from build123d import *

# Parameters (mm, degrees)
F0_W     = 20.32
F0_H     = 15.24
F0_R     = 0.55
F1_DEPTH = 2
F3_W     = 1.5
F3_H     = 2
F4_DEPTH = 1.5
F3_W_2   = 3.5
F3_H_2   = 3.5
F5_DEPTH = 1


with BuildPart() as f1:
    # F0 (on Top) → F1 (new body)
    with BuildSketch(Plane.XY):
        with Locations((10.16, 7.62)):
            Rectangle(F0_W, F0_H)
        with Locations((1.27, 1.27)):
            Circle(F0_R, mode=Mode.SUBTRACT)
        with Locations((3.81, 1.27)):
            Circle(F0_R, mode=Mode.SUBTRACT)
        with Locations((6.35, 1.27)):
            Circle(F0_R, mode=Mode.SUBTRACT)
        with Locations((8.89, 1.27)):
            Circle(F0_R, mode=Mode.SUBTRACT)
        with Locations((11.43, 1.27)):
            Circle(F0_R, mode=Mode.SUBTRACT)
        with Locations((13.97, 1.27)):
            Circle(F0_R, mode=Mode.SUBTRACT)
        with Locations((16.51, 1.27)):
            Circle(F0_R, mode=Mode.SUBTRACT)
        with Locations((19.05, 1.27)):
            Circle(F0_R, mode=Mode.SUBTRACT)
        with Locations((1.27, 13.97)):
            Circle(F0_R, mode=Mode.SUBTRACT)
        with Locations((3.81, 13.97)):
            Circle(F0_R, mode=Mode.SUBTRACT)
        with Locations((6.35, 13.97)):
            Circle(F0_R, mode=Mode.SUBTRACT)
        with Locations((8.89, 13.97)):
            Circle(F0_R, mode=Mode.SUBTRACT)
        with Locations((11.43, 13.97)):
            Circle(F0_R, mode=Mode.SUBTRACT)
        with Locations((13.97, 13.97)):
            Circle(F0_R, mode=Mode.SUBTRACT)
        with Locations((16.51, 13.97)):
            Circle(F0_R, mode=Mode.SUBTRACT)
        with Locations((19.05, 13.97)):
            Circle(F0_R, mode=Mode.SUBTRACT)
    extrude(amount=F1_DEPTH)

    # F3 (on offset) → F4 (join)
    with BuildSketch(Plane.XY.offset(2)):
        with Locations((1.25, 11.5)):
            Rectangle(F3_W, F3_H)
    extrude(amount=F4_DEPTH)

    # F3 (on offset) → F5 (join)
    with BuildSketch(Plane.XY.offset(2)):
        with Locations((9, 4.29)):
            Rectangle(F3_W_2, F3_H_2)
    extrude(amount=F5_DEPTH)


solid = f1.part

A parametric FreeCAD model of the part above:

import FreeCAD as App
import Part
import Sketcher
from FreeCAD import Vector
Q = App.Units.Quantity

doc = App.newDocument("Part")
params = doc.addObject("Spreadsheet::Sheet", "Params")
for row, (alias, value) in enumerate([
    ("sketch1_diameter", "1.1 mm"),
    ("sketch1_width", "20.32 mm"),
    ("sketch1_height", "15.24 mm"),
    ("pad1_length", "2 mm"),
    ("sketch2_height", "2 mm"),
    ("sketch2_width", "1.5 mm"),
    ("pad2_length", "1.5 mm"),
    ("sketch3_width", "3.5 mm"),
    ("pad3_length", "1 mm"),
], start=1):
    params.set(f"A{row}", alias)
    params.set(f"B{row}", "=" + value)
    params.setAlias(f"B{row}", alias)

body = doc.addObject("PartDesign::Body", "Body")

# Sketch on XY plane
sketch1 = body.newObject("Sketcher::SketchObject", "Sketch")
sketch1.AttachmentSupport = (doc.getObject("XY_Plane"), [""])
sketch1.MapMode = "FlatFace"
sketch1.addGeometry([
    Part.LineSegment(Vector(0, 15.2, 0), Vector(0, 0, 0)),  # 0
    Part.LineSegment(Vector(0, 0, 0), Vector(20.3, 0, 0)),  # 1
    Part.LineSegment(Vector(20.3, 0, 0), Vector(20.3, 15.2, 0)),  # 2
    Part.LineSegment(Vector(20.3, 15.2, 0), Vector(0, 15.2, 0)),  # 3
    Part.Circle(Vector(1.3, 1.3, 0), Vector(0, 0, 1), 0.6),  # 4
    Part.Circle(Vector(3.8, 1.3, 0), Vector(0, 0, 1), 0.6),  # 5
    Part.Circle(Vector(6.3, 1.3, 0), Vector(0, 0, 1), 0.6),  # 6
    Part.Circle(Vector(8.9, 1.3, 0), Vector(0, 0, 1), 0.6),  # 7
    Part.Circle(Vector(11.4, 1.3, 0), Vector(0, 0, 1), 0.6),  # 8
    Part.Circle(Vector(14, 1.3, 0), Vector(0, 0, 1), 0.6),  # 9
    Part.Circle(Vector(16.5, 1.3, 0), Vector(0, 0, 1), 0.6),  # 10
    Part.Circle(Vector(19.1, 1.3, 0), Vector(0, 0, 1), 0.6),  # 11
    Part.Circle(Vector(1.3, 14, 0), Vector(0, 0, 1), 0.6),  # 12
    Part.Circle(Vector(3.8, 14, 0), Vector(0, 0, 1), 0.6),  # 13
    Part.Circle(Vector(6.3, 14, 0), Vector(0, 0, 1), 0.6),  # 14
    Part.Circle(Vector(8.9, 14, 0), Vector(0, 0, 1), 0.6),  # 15
    Part.Circle(Vector(11.4, 14, 0), Vector(0, 0, 1), 0.6),  # 16
    Part.Circle(Vector(14, 14, 0), Vector(0, 0, 1), 0.6),  # 17
    Part.Circle(Vector(16.5, 14, 0), Vector(0, 0, 1), 0.6),  # 18
    Part.Circle(Vector(19.1, 14, 0), Vector(0, 0, 1), 0.6),  # 19
], False)
sketch1.addConstraint([
    Sketcher.Constraint("Coincident", 0, 2, 1, 1),
    Sketcher.Constraint("Coincident", 1, 2, 2, 1),
    Sketcher.Constraint("Coincident", 2, 2, 3, 1),
    Sketcher.Constraint("Coincident", 3, 2, 0, 1),
    Sketcher.Constraint("Vertical", 0),
    Sketcher.Constraint("Horizontal", 1),
    Sketcher.Constraint("Vertical", 2),
    Sketcher.Constraint("Horizontal", 3),
    Sketcher.Constraint("Coincident", 0, 2, -1, 1),
    Sketcher.Constraint("Equal", 4, 5),
    Sketcher.Constraint("Equal", 5, 6),
    Sketcher.Constraint("Equal", 6, 7),
    Sketcher.Constraint("Equal", 7, 8),
    Sketcher.Constraint("Equal", 8, 9),
    Sketcher.Constraint("Equal", 9, 10),
    Sketcher.Constraint("Equal", 10, 11),
    Sketcher.Constraint("Equal", 11, 12),
    Sketcher.Constraint("Equal", 12, 13),
    Sketcher.Constraint("Equal", 13, 14),
    Sketcher.Constraint("Equal", 14, 15),
    Sketcher.Constraint("Equal", 15, 16),
    Sketcher.Constraint("Equal", 16, 17),
    Sketcher.Constraint("Equal", 17, 18),
    Sketcher.Constraint("Equal", 18, 19),
    Sketcher.Constraint("Horizontal", 4, 3, 5, 3),
    Sketcher.Constraint("Horizontal", 5, 3, 6, 3),
    Sketcher.Constraint("Horizontal", 6, 3, 7, 3),
    Sketcher.Constraint("Horizontal", 7, 3, 8, 3),
    Sketcher.Constraint("Horizontal", 8, 3, 9, 3),
    Sketcher.Constraint("Horizontal", 9, 3, 10, 3),
    Sketcher.Constraint("Horizontal", 10, 3, 11, 3),
    Sketcher.Constraint("Horizontal", 12, 3, 13, 3),
    Sketcher.Constraint("Horizontal", 13, 3, 14, 3),
    Sketcher.Constraint("Horizontal", 14, 3, 15, 3),
    Sketcher.Constraint("Horizontal", 15, 3, 16, 3),
    Sketcher.Constraint("Horizontal", 16, 3, 17, 3),
    Sketcher.Constraint("Horizontal", 17, 3, 18, 3),
    Sketcher.Constraint("Horizontal", 18, 3, 19, 3),
    Sketcher.Constraint("Vertical", 4, 3, 12, 3),
    Sketcher.Constraint("Vertical", 5, 3, 13, 3),
    Sketcher.Constraint("Vertical", 6, 3, 14, 3),
    Sketcher.Constraint("Vertical", 7, 3, 15, 3),
    Sketcher.Constraint("Vertical", 8, 3, 16, 3),
    Sketcher.Constraint("Vertical", 9, 3, 17, 3),
    Sketcher.Constraint("Vertical", 10, 3, 18, 3),
    Sketcher.Constraint("Vertical", 11, 3, 19, 3),
    Sketcher.Constraint("Diameter", 4, Q("1.1 mm")),
    Sketcher.Constraint("DistanceX", 1, 1, 1, 2, Q("20.32 mm")),
    Sketcher.Constraint("DistanceY", 0, 2, 0, 1, Q("15.24 mm")),
    Sketcher.Constraint("DistanceX", 4, 3, 9, 3, Q("12.7 mm")),
    Sketcher.Constraint("DistanceX", 5, 3, 10, 3, Q("12.7 mm")),
    Sketcher.Constraint("DistanceX", 6, 3, 11, 3, Q("12.7 mm")),
    Sketcher.Constraint("DistanceY", 4, 3, 12, 3, Q("12.7 mm")),
    Sketcher.Constraint("DistanceX", -1, 1, 4, 3, Q("1.27 mm")),
    Sketcher.Constraint("DistanceY", -1, 1, 4, 3, Q("1.27 mm")),
    Sketcher.Constraint("DistanceX", -1, 1, 5, 3, Q("3.81 mm")),
    Sketcher.Constraint("DistanceX", -1, 1, 6, 3, Q("6.35 mm")),
    Sketcher.Constraint("DistanceX", -1, 1, 7, 3, Q("8.89 mm")),
    Sketcher.Constraint("DistanceX", -1, 1, 8, 3, Q("11.43 mm")),
])
sketch1.setExpression("Constraints[46]", "Params.sketch1_diameter")
sketch1.setExpression("Constraints[47]", "Params.sketch1_width")
sketch1.setExpression("Constraints[48]", "Params.sketch1_height")
pad1 = body.newObject("PartDesign::Pad", "Pad")
pad1.Profile = sketch1
pad1.setExpression("Length", "Params.pad1_length")

# Sketch on XY plane
sketch2 = body.newObject("Sketcher::SketchObject", "Sketch001")
sketch2.AttachmentSupport = (doc.getObject("XY_Plane"), [""])
sketch2.MapMode = "FlatFace"
sketch2.AttachmentOffset = App.Placement(Vector(0, 0, 2), App.Rotation())
sketch2.addGeometry([
    Part.LineSegment(Vector(0.5, 12.5, 0), Vector(0.5, 10.5, 0)),
    Part.LineSegment(Vector(0.5, 10.5, 0), Vector(2, 10.5, 0)),
    Part.LineSegment(Vector(2, 10.5, 0), Vector(2, 12.5, 0)),
    Part.LineSegment(Vector(2, 12.5, 0), Vector(0.5, 12.5, 0)),
], False)
sketch2.addConstraint([
    Sketcher.Constraint("Coincident", 0, 2, 1, 1),
    Sketcher.Constraint("Coincident", 1, 2, 2, 1),
    Sketcher.Constraint("Coincident", 2, 2, 3, 1),
    Sketcher.Constraint("Coincident", 3, 2, 0, 1),
    Sketcher.Constraint("Vertical", 0),
    Sketcher.Constraint("Horizontal", 1),
    Sketcher.Constraint("Vertical", 2),
    Sketcher.Constraint("Horizontal", 3),
    Sketcher.Constraint("DistanceY", 0, 2, 0, 1, Q("2 mm")),
    Sketcher.Constraint("DistanceX", 1, 1, 1, 2, Q("1.5 mm")),
    Sketcher.Constraint("DistanceX", -1, 1, 1, 2, Q("2 mm")),
    Sketcher.Constraint("DistanceY", -1, 1, 0, 2, Q("10.5 mm")),
])
sketch2.setExpression("Constraints[8]", "Params.sketch2_height")
sketch2.setExpression("Constraints[9]", "Params.sketch2_width")
pad2 = body.newObject("PartDesign::Pad", "Pad001")
pad2.Profile = sketch2
pad2.setExpression("Length", "Params.pad2_length")

# Sketch on XY plane
sketch3 = body.newObject("Sketcher::SketchObject", "Sketch002")
sketch3.AttachmentSupport = (doc.getObject("XY_Plane"), [""])
sketch3.MapMode = "FlatFace"
sketch3.AttachmentOffset = App.Placement(Vector(0, 0, 2), App.Rotation())
sketch3.addGeometry([
    Part.LineSegment(Vector(7.2, 6, 0), Vector(7.2, 2.5, 0)),
    Part.LineSegment(Vector(7.2, 2.5, 0), Vector(10.8, 2.5, 0)),
    Part.LineSegment(Vector(10.8, 2.5, 0), Vector(10.8, 6, 0)),
    Part.LineSegment(Vector(10.8, 6, 0), Vector(7.2, 6, 0)),
], False)
sketch3.addConstraint([
    Sketcher.Constraint("Coincident", 0, 2, 1, 1),
    Sketcher.Constraint("Coincident", 1, 2, 2, 1),
    Sketcher.Constraint("Coincident", 2, 2, 3, 1),
    Sketcher.Constraint("Coincident", 3, 2, 0, 1),
    Sketcher.Constraint("Vertical", 0),
    Sketcher.Constraint("Horizontal", 1),
    Sketcher.Constraint("Vertical", 2),
    Sketcher.Constraint("Horizontal", 3),
    Sketcher.Constraint("Equal", 3, 0),
    Sketcher.Constraint("DistanceX", 1, 1, 1, 2, Q("3.5 mm")),
    Sketcher.Constraint("DistanceX", -1, 1, 0, 2, Q("7.25 mm")),
    Sketcher.Constraint("DistanceY", -1, 1, 0, 2, Q("2.54 mm")),
])
sketch3.setExpression("Constraints[9]", "Params.sketch3_width")
pad3 = body.newObject("PartDesign::Pad", "Pad002")
pad3.Profile = sketch3
pad3.setExpression("Length", "Params.pad3_length")

doc.recompute()
